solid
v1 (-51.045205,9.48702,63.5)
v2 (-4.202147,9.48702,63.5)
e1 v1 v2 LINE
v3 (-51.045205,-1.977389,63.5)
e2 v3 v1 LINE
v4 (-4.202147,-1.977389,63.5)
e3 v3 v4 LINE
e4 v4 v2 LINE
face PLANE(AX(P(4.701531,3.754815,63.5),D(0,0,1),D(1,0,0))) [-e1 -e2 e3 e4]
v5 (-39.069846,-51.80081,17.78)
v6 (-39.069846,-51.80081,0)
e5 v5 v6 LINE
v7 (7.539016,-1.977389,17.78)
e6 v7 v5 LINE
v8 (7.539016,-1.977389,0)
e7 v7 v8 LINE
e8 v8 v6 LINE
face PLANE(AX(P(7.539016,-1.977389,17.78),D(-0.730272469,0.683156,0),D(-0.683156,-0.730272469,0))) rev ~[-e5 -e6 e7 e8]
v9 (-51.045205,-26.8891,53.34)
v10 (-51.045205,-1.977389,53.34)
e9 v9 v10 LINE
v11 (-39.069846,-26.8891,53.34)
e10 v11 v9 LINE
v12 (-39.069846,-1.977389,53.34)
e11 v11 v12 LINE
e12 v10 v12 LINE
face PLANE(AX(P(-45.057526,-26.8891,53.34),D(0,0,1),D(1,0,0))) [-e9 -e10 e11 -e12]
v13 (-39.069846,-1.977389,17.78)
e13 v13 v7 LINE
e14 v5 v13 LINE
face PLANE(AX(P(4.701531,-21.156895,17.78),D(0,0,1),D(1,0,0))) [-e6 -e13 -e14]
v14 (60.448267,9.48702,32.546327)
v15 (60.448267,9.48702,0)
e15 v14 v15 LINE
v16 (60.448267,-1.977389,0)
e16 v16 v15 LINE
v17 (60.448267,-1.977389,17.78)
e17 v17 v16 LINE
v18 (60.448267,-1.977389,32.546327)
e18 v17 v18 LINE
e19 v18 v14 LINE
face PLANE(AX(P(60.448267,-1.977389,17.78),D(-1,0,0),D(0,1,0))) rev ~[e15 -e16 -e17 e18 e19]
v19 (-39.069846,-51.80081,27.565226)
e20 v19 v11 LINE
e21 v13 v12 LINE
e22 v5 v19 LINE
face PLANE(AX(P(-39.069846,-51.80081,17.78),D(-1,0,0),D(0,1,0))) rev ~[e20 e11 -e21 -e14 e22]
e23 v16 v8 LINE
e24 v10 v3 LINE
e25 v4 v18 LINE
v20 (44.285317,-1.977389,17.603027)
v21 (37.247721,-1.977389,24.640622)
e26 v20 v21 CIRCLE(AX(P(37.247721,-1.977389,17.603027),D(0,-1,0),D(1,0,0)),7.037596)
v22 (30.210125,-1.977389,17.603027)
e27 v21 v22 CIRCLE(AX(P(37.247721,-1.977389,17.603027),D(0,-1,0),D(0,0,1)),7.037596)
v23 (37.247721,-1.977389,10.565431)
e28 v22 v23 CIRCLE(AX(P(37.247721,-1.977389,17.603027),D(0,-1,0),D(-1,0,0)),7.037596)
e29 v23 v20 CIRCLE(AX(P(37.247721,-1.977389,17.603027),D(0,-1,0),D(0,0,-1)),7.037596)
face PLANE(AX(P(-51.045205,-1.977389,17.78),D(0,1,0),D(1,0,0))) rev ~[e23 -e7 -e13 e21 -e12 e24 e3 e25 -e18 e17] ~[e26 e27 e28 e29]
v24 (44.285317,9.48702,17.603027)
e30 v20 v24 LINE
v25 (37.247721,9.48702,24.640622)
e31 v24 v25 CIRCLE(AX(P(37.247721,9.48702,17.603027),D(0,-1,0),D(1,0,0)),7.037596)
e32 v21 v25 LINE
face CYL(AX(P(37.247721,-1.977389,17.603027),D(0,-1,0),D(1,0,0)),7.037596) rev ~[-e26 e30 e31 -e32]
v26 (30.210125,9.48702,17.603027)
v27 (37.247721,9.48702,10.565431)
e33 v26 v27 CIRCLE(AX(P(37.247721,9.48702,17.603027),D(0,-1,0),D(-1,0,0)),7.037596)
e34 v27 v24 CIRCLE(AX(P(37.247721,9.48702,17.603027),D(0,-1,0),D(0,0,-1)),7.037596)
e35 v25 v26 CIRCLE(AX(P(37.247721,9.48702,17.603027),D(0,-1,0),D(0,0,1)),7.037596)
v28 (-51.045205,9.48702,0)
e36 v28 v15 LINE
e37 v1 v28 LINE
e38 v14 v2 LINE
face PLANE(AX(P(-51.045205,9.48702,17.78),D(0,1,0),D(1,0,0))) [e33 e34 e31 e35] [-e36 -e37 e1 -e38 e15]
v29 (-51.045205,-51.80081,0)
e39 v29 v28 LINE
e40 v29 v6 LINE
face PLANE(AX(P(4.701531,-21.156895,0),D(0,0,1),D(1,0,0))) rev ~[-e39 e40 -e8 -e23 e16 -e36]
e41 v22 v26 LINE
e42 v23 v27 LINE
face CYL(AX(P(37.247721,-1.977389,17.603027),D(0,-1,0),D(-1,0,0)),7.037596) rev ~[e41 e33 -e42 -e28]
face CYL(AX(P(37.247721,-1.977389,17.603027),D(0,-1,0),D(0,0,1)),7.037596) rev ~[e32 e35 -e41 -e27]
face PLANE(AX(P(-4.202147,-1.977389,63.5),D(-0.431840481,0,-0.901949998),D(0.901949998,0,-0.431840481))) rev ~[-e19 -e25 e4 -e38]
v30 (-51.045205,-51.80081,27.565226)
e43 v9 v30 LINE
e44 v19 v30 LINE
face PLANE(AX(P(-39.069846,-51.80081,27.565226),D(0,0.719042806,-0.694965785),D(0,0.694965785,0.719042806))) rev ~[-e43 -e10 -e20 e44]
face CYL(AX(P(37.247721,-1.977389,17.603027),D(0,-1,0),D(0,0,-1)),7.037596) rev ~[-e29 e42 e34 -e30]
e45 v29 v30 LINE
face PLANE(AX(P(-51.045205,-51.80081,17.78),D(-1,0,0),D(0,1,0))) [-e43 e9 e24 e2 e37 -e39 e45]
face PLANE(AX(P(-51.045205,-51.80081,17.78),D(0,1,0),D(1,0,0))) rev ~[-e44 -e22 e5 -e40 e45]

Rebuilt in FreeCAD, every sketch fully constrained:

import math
import FreeCAD as App
import Part
import Sketcher
from FreeCAD import Vector
Q = App.Units.Quantity


def add_polygon(sketch, points):
    """Adds a closed chain of lines whose ends are joined by coincident constraints."""
    first, n = sketch.GeometryCount, len(points)
    for a, b in zip(points, points[1:] + points[:1]):
        sketch.addGeometry(Part.LineSegment(App.Vector(*a, 0), App.Vector(*b, 0)), False)
    for i in range(n):
        sketch.addConstraint(Sketcher.Constraint("Coincident", first + i, 2, first + (i + 1) % n, 1))

doc = App.newDocument("Part")
body = doc.addObject("PartDesign::Body", "Body")

# Sketch on XY plane
sketch1 = body.newObject("Sketcher::SketchObject", "Sketch")
sketch1.AttachmentSupport = (doc.getObject("XY_Plane"), [""])
sketch1.MapMode = "FlatFace"
add_polygon(sketch1, [(-51.045205, 9.48702), (-51.045205, -51.80081), (60.448267, -51.80081), (60.448267, 9.48702)])  # lines 0-3
sketch1.addConstraint(Sketcher.Constraint("Vertical", 0))
sketch1.addConstraint(Sketcher.Constraint("Horizontal", 1))
sketch1.addConstraint(Sketcher.Constraint("Vertical", 2))
sketch1.addConstraint(Sketcher.Constraint("Horizontal", 3))
sketch1.addConstraint(Sketcher.Constraint("DistanceY", 0, 2, 0, 1, 61.28783))
sketch1.addConstraint(Sketcher.Constraint("DistanceX", 1, 1, 1, 2, 111.493472))
sketch1.addConstraint(Sketcher.Constraint("DistanceY", 0, 2, -1, 1, 51.80081))
sketch1.addConstraint(Sketcher.Constraint("DistanceX", 0, 2, -1, 1, 51.045205))
pad1 = body.newObject("PartDesign::Pad", "Pad")
pad1.Profile = sketch1
pad1.Length = Q("0.7 in")

# Sketch on XY plane
sketch2 = body.newObject("Sketcher::SketchObject", "Sketch001")
sketch2.AttachmentSupport = (doc.getObject("XY_Plane"), [""])
sketch2.MapMode = "FlatFace"
sketch2.AttachmentOffset = App.Placement(Vector(0, 0, 0.7 * 25.4), App.Rotation())
add_polygon(sketch2, [(-51.045205, 9.48702), (-51.045205, -1.977389), (60.448267, -1.977389), (60.448267, 9.48702)])  # lines 0-3
sketch2.addConstraint(Sketcher.Constraint("Vertical", 0))
sketch2.addConstraint(Sketcher.Constraint("Horizontal", 1))
sketch2.addConstraint(Sketcher.Constraint("Vertical", 2))
sketch2.addConstraint(Sketcher.Constraint("Horizontal", 3))
sketch2.addConstraint(Sketcher.Constraint("DistanceY", 0, 2, 0, 1, 11.464409))
sketch2.addConstraint(Sketcher.Constraint("DistanceX", 1, 1, 1, 2, 111.493472))
sketch2.addConstraint(Sketcher.Constraint("DistanceY", 0, 2, -1, 1, 1.977389))
sketch2.addConstraint(Sketcher.Constraint("DistanceX", 0, 2, -1, 1, 51.045205))
pad2 = body.newObject("PartDesign::Pad", "Pad001")
pad2.Profile = sketch2
pad2.Length = Q("1.8 in")

# Sketch on XY plane
sketch3 = body.newObject("Sketcher::SketchObject", "Sketch002")
sketch3.AttachmentSupport = (doc.getObject("XY_Plane"), [""])
sketch3.MapMode = "FlatFace"
sketch3.AttachmentOffset = App.Placement(Vector(0, 0, 0.7 * 25.4), App.Rotation())
add_polygon(sketch3, [(-51.045205, -1.977389), (-51.045205, -51.80081), (-39.069846, -51.80081), (-39.069846, -1.977389)])  # lines 0-3
sketch3.addConstraint(Sketcher.Constraint("Vertical", 0))
sketch3.addConstraint(Sketcher.Constraint("Horizontal", 1))
sketch3.addConstraint(Sketcher.Constraint("Vertical", 2))
sketch3.addConstraint(Sketcher.Constraint("Horizontal", 3))
sketch3.addConstraint(Sketcher.Constraint("DistanceX", 1, 1, 1, 2, 11.975359))
sketch3.addConstraint(Sketcher.Constraint("DistanceY", 0, 2, 0, 1, 49.823421))
sketch3.addConstraint(Sketcher.Constraint("DistanceY", 0, 2, -1, 1, 51.80081))
sketch3.addConstraint(Sketcher.Constraint("DistanceX", 0, 2, -1, 1, 51.045205))
pad3 = body.newObject("PartDesign::Pad", "Pad002")
pad3.Profile = sketch3
pad3.Length = Q("1.4 in")

# Sketch on YZ plane
sketch4 = body.newObject("Sketcher::SketchObject", "Sketch003")
sketch4.AttachmentSupport = (doc.getObject("YZ_Plane"), [""])
sketch4.MapMode = "FlatFace"
sketch4.AttachmentOffset = App.Placement(Vector(0, 0, -39.069846), App.Rotation())
add_polygon(sketch4, [(-51.80081, 27.565226), (-26.8891, 53.34), (-51.80081, 53.34)])  # lines 0-2
sketch4.addConstraint(Sketcher.Constraint("Horizontal", 1))
sketch4.addConstraint(Sketcher.Constraint("Vertical", 2))
sketch4.addConstraint(Sketcher.Constraint("DistanceY", -1, 1, 0, 2, Q("2.1 in")))
sketch4.addConstraint(Sketcher.Constraint("DistanceX", 1, 2, 1, 1, 24.91171))
sketch4.addConstraint(Sketcher.Constraint("DistanceX", 0, 2, -1, 1, 26.8891))
sketch4.addConstraint(Sketcher.Constraint("DistanceY", 2, 2, 2, 1, 25.774774))
pocket1 = body.newObject("PartDesign::Pocket", "Pocket")
pocket1.Profile = sketch4
pocket1.Length = Q("1 in")

# Sketch on XZ plane
sketch5 = body.newObject("Sketcher::SketchObject", "Sketch004")
sketch5.AttachmentSupport = (doc.getObject("XZ_Plane"), [""])
sketch5.MapMode = "FlatFace"
sketch5.AttachmentOffset = App.Placement(Vector(0, 0, 1.977389), App.Rotation())
add_polygon(sketch5, [(60.448267, 63.5), (-4.202147, 63.5), (60.448267, 32.546327)])  # lines 0-2
sketch5.addConstraint(Sketcher.Constraint("Horizontal", 0))
sketch5.addConstraint(Sketcher.Constraint("Vertical", 2))
sketch5.addConstraint(Sketcher.Constraint("DistanceY", -1, 1, 0, 2, Q("2.5 in")))
sketch5.addConstraint(Sketcher.Constraint("Distance", 1, 71.67849))
sketch5.addConstraint(Sketcher.Constraint("DistanceX", 0, 2, 0, 1, 64.650414))
sketch5.addConstraint(Sketcher.Constraint("DistanceX", 0, 2, -1, 1, 4.202147))
pocket2 = body.newObject("PartDesign::Pocket", "Pocket001")
pocket2.Profile = sketch5
pocket2.Length = Q("1 in")

# Sketch on XY plane
sketch6 = body.newObject("Sketcher::SketchObject", "Sketch005")
sketch6.AttachmentSupport = (doc.getObject("XY_Plane"), [""])
sketch6.MapMode = "FlatFace"
sketch6.AttachmentOffset = App.Placement(Vector(0, 0, 0.7 * 25.4), App.Rotation())
add_polygon(sketch6, [(60.448267, -1.977389), (7.539016, -1.977389), (-39.069846, -51.80081), (60.448267, -51.80081)])  # lines 0-3
sketch6.addConstraint(Sketcher.Constraint("Horizontal", 0))
sketch6.addConstraint(Sketcher.Constraint("Horizontal", 2))
sketch6.addConstraint(Sketcher.Constraint("Vertical", 3))
sketch6.addConstraint(Sketcher.Constraint("DistanceX", 0, 2, 0, 1, 52.909251))
sketch6.addConstraint(Sketcher.Constraint("DistanceY", 3, 1, 3, 2, 49.823421))
sketch6.addConstraint(Sketcher.Constraint("DistanceX", 2, 1, 2, 2, 99.518113))
sketch6.addConstraint(Sketcher.Constraint("DistanceY", 0, 2, -1, 1, 1.977389))
sketch6.addConstraint(Sketcher.Constraint("DistanceX", -1, 1, 0, 2, 7.539016))
pocket3 = body.newObject("PartDesign::Pocket", "Pocket002")
pocket3.Profile = sketch6
pocket3.Length = Q("1 in")

# Sketch on XZ plane
sketch7 = body.newObject("Sketcher::SketchObject", "Sketch006")
sketch7.AttachmentSupport = (doc.getObject("XZ_Plane"), [""])
sketch7.MapMode = "FlatFace"
sketch7.AttachmentOffset = App.Placement(Vector(0, 0, 1.977389), App.Rotation())
sketch7.addGeometry(Part.ArcOfCircle(Part.Circle(Vector(37.247721, 17.603027, 0), Vector(0, 0, 1), 7.037596), math.radians(0), math.radians(90)), False)
sketch7.addGeometry(Part.ArcOfCircle(Part.Circle(Vector(37.247721, 17.603027, 0), Vector(0, 0, 1), 7.037596), math.radians(90), math.radians(180)), False)
sketch7.addGeometry(Part.ArcOfCircle(Part.Circle(Vector(37.247721, 17.603027, 0), Vector(0, 0, 1), 7.037596), math.radians(180), math.radians(270)), False)
sketch7.addGeometry(Part.ArcOfCircle(Part.Circle(Vector(37.247721, 17.603027, 0), Vector(0, 0, 1), 7.037596), math.radians(-90), math.radians(0)), False)
sketch7.addConstraint(Sketcher.Constraint("Tangent", 0, 2, 1, 1))
sketch7.addConstraint(Sketcher.Constraint("Tangent", 1, 2, 2, 1))
sketch7.addConstraint(Sketcher.Constraint("Tangent", 2, 2, 3, 1))
sketch7.addConstraint(Sketcher.Constraint("Tangent", 3, 2, 0, 1))
sketch7.addConstraint(Sketcher.Constraint("Equal", 0, 1))
sketch7.addConstraint(Sketcher.Constraint("Horizontal", 3, 3, 1, 2))
sketch7.addConstraint(Sketcher.Constraint("Horizontal", 1, 2, 3, 2))
sketch7.addConstraint(Sketcher.Constraint("Vertical", 3, 3, 0, 2))
sketch7.addConstraint(Sketcher.Constraint("Vertical", 0, 2, 2, 2))
sketch7.addConstraint(Sketcher.Constraint("Radius", 0, 7.037596))
sketch7.addConstraint(Sketcher.Constraint("DistanceX", -1, 1, 0, 3, 37.247721))
sketch7.addConstraint(Sketcher.Constraint("DistanceY", -1, 1, 2, 2, 10.565431))
pocket4 = body.newObject("PartDesign::Pocket", "Pocket003")
pocket4.Profile = sketch7
pocket4.Length = Q("1 in")

doc.recompute()
